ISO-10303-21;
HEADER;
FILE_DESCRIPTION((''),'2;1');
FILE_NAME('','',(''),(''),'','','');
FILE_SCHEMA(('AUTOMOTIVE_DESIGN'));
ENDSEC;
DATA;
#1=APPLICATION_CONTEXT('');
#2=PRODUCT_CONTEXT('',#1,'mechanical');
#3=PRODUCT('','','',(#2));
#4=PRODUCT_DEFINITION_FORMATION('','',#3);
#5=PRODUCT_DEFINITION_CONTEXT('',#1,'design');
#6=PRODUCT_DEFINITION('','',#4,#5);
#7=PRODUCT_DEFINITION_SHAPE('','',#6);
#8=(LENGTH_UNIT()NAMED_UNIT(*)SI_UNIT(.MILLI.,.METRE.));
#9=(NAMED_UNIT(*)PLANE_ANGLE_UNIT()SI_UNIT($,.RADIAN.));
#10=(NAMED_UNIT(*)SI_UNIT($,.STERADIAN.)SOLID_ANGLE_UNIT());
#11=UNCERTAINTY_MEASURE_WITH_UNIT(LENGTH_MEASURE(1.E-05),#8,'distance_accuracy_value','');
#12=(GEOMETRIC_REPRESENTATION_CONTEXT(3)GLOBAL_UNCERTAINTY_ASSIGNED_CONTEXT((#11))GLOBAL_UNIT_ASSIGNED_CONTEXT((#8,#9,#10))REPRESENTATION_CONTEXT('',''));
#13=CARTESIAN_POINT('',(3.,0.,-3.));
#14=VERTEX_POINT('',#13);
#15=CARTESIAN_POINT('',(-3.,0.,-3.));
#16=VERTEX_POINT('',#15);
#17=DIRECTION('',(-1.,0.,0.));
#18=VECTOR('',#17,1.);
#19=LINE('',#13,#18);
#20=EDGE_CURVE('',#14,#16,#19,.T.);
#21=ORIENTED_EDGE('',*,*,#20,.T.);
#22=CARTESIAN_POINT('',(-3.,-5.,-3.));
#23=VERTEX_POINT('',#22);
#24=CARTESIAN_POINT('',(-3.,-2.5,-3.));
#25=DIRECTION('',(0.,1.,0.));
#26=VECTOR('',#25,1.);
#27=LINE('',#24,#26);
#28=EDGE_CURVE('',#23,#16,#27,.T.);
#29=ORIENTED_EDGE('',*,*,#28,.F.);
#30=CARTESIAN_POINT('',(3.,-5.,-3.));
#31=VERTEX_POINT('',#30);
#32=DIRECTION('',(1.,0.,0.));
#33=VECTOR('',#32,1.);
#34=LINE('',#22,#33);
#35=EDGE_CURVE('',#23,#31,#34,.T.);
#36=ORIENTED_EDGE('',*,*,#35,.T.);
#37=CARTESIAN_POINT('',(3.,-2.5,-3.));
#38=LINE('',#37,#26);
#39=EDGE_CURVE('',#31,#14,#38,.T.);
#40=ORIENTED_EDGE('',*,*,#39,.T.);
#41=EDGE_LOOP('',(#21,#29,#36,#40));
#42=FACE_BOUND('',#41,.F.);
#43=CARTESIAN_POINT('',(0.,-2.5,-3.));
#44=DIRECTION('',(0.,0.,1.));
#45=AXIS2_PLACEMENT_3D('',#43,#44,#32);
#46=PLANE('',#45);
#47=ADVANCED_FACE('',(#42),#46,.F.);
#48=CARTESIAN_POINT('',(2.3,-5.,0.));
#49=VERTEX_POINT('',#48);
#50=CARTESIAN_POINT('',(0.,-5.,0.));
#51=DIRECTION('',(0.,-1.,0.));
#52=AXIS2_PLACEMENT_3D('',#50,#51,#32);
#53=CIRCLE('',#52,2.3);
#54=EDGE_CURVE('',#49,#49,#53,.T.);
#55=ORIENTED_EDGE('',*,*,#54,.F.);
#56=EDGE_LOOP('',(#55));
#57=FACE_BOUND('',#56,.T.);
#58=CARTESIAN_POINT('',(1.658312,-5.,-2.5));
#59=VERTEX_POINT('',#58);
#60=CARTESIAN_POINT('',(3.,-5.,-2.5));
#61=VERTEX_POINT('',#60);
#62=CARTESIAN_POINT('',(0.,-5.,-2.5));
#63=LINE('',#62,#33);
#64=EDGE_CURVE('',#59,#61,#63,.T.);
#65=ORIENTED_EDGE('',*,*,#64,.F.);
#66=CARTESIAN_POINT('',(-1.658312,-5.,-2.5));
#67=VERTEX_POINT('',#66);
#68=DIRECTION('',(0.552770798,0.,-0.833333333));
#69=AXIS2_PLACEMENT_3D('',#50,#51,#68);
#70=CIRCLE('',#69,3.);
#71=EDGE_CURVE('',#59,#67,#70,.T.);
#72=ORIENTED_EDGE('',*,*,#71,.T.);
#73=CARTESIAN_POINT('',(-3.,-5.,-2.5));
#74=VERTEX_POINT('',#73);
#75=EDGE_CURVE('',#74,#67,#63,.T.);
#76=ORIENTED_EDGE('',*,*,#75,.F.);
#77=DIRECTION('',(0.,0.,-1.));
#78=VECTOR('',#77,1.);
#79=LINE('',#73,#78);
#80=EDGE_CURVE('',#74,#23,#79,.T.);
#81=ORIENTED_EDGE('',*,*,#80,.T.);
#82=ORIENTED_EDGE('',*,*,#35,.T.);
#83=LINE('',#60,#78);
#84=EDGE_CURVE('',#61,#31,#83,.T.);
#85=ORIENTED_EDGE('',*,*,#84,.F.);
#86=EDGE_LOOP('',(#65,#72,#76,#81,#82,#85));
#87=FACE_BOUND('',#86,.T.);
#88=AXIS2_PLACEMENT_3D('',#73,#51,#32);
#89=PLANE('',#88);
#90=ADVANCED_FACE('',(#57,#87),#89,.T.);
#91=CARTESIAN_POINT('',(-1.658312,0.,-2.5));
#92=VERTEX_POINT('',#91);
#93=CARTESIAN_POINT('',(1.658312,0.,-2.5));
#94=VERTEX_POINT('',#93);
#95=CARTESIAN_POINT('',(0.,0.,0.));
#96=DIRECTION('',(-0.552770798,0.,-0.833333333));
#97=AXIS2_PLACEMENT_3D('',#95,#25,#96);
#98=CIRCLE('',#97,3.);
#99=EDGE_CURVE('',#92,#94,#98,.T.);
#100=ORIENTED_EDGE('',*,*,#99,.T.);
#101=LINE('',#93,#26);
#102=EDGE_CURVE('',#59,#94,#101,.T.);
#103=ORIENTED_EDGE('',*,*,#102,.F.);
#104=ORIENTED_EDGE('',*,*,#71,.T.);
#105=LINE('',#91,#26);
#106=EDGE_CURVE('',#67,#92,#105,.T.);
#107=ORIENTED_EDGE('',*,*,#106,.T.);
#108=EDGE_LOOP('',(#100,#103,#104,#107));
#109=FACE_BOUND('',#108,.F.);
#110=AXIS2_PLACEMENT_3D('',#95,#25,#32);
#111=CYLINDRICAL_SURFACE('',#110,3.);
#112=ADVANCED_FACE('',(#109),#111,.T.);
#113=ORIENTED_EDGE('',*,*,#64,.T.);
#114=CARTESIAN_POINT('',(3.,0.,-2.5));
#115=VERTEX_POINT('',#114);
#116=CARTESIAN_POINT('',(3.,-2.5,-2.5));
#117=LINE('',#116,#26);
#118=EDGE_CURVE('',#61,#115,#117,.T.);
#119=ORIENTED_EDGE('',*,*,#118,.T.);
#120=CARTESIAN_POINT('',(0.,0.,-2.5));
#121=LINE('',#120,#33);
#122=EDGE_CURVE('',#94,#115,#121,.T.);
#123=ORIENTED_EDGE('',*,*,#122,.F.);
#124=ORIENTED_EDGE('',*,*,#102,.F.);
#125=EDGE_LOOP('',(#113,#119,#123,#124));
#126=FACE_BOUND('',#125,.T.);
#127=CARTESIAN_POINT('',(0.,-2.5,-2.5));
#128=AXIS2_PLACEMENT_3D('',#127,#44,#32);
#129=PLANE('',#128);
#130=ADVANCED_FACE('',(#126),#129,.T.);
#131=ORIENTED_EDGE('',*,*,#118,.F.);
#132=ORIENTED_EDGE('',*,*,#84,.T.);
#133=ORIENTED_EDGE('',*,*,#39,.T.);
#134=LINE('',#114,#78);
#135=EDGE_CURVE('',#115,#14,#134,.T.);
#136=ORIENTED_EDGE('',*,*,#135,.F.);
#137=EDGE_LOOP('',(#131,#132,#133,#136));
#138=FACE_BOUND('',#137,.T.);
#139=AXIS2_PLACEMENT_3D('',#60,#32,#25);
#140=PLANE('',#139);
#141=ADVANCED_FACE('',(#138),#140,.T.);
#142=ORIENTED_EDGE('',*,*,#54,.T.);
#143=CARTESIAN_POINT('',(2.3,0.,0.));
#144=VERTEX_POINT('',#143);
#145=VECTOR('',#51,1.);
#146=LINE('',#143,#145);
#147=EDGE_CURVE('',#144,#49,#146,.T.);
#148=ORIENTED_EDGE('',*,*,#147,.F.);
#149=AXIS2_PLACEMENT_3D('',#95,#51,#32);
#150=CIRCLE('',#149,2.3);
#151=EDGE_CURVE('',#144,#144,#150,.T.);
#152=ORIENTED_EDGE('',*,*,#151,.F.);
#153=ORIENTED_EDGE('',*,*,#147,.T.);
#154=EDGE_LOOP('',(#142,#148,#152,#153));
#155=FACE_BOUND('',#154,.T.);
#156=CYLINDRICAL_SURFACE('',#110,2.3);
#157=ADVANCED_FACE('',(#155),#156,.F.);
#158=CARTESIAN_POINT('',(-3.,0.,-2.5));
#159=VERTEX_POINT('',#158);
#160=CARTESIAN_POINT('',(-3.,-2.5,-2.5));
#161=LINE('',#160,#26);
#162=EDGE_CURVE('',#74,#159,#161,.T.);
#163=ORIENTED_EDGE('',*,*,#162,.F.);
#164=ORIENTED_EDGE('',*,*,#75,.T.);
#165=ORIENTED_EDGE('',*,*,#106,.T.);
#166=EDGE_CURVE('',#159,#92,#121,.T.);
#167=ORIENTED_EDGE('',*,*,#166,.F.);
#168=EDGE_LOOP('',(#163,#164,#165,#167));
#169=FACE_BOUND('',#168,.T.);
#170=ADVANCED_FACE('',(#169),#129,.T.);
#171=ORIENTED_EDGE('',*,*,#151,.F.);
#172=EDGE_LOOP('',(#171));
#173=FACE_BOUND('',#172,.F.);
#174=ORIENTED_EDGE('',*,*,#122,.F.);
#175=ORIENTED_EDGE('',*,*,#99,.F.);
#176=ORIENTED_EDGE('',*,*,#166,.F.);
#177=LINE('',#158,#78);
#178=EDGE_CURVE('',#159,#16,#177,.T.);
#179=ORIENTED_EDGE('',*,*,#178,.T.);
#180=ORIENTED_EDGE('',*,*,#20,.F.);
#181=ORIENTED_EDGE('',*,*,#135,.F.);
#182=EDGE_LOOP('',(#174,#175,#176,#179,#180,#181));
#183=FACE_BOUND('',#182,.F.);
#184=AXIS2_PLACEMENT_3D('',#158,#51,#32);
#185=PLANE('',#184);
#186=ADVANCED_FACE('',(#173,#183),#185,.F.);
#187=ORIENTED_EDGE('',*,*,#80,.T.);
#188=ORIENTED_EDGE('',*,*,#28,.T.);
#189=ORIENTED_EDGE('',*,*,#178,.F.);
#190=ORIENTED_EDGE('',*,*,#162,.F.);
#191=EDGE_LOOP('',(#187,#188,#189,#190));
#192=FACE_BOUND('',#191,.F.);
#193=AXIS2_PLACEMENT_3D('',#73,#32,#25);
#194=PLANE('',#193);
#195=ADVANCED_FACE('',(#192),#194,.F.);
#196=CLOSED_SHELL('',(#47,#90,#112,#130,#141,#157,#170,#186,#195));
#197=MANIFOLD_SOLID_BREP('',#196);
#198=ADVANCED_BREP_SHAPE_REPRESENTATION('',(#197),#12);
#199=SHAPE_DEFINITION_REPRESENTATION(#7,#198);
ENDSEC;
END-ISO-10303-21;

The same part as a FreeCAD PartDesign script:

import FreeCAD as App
import Part
import Sketcher

V = App.Vector
Q = App.Units.Quantity


def add_polygon(sketch, points):
    """Adds a closed chain of lines whose ends are joined by coincident constraints."""
    first, n = sketch.GeometryCount, len(points)
    for a, b in zip(points, points[1:] + points[:1]):
        sketch.addGeometry(Part.LineSegment(App.Vector(*a, 0), App.Vector(*b, 0)), False)
    for i in range(n):
        sketch.addConstraint(Sketcher.Constraint("Coincident", first + i, 2, first + (i + 1) % n, 1))

doc = App.newDocument("Part")
body = doc.addObject("PartDesign::Body", "Body")

sketch1 = body.newObject("Sketcher::SketchObject", "Sketch")
sketch1.AttachmentSupport = (doc.getObject("XZ_Plane"), [""])
sketch1.MapMode = "FlatFace"
sketch1.addGeometry([
    Part.Circle(V(0, 0, 0), V(0, 0, 1), 3),
    Part.Circle(V(0, 0, 0), V(0, 0, 1), 2.3),
], False)
sketch1.addConstraint([
    Sketcher.Constraint("Coincident", 0, 3, -1, 1),
    Sketcher.Constraint("Coincident", 1, 3, -1, 1),
    Sketcher.Constraint("Diameter", 0, Q("6 mm")),
    Sketcher.Constraint("Diameter", 1, Q("4.6 mm")),
])
pad1 = body.newObject("PartDesign::Pad", "Pad")
pad1.Profile = sketch1
pad1.Length = 5

sketch2 = body.newObject("Sketcher::SketchObject", "Sketch001")
sketch2.AttachmentSupport = (doc.getObject("XY_Plane"), [""])
sketch2.MapMode = "FlatFace"
sketch2.AttachmentOffset = App.Placement(V(0, 0, -2.5), App.Rotation())
add_polygon(sketch2, [(-3, 0), (-3, -5), (3, -5), (3, 0)])
sketch2.addConstraint([
    Sketcher.Constraint("Vertical", 0),
    Sketcher.Constraint("Horizontal", 1),
    Sketcher.Constraint("Vertical", 2),
    Sketcher.Constraint("Horizontal", 3),
    Sketcher.Constraint("Symmetric", 2, 2, 3, 2, -1, 1),
    Sketcher.Constraint("DistanceX", 1, 1, 1, 2, Q("6 mm")),
    Sketcher.Constraint("DistanceY", 0, 2, 0, 1, Q("5 mm")),
])
pad2 = body.newObject("PartDesign::Pad", "Pad001")
pad2.Profile = sketch2
pad2.Length = 0.5
pad2.Reversed = True

doc.recompute()
